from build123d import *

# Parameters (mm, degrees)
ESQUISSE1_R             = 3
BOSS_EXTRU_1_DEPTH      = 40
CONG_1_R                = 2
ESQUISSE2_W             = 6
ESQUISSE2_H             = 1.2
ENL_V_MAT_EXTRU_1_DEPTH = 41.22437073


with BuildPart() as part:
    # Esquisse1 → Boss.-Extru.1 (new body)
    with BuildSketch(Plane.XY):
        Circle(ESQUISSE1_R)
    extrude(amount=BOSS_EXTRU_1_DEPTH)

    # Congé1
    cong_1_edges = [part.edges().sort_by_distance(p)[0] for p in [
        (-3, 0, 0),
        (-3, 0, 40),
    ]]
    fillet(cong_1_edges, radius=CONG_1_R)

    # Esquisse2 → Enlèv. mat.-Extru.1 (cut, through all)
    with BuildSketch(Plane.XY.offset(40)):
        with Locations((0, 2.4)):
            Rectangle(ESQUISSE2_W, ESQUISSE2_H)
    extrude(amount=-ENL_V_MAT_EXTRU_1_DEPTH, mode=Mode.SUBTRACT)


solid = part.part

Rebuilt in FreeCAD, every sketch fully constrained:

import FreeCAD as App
import Part
import Sketcher
from FreeCAD import Vector
Q = App.Units.Quantity


def edges_at(feature, points):
    """Names of the edges that pass closest to the given points."""
    edges = feature.Shape.Edges
    near = lambda p: min(range(len(edges)), key=lambda i: edges[i].distToShape(Part.Vertex(*p))[0])
    return sorted({f"Edge{near(p) + 1}" for p in points})

doc = App.newDocument("Part")
body = doc.addObject("PartDesign::Body", "Body")

# Sketch on XY plane
sketch1 = body.newObject("Sketcher::SketchObject", "Sketch")
sketch1.AttachmentSupport = (doc.getObject("XY_Plane"), [""])
sketch1.MapMode = "FlatFace"
sketch1.addGeometry(Part.Circle(Vector(0, 0, 0), Vector(0, 0, 1), 3), False)
sketch1.addConstraint([
    Sketcher.Constraint("Coincident", 0, 3, -1, 1),
    Sketcher.Constraint("Diameter", 0, Q("6 mm")),
])
pad1 = body.newObject("PartDesign::Pad", "Pad")
pad1.Profile = sketch1
pad1.Length = 40
doc.recompute()

fillet = body.newObject("PartDesign::Fillet", "Fillet")
fillet.Base = (pad1, edges_at(pad1, [(-3, 0, 0), (-3, 0, 40)]))
fillet.Radius = 2

# Sketch on XY plane
sketch2 = body.newObject("Sketcher::SketchObject", "Sketch001")
sketch2.AttachmentSupport = (doc.getObject("XY_Plane"), [""])
sketch2.MapMode = "FlatFace"
sketch2.AttachmentOffset = App.Placement(Vector(0, 0, 40), App.Rotation())
sketch2.addGeometry([
    Part.LineSegment(Vector(-3, 3, 0), Vector(-3, 1.8, 0)),
    Part.LineSegment(Vector(-3, 1.8, 0), Vector(3, 1.8, 0)),
    Part.LineSegment(Vector(3, 1.8, 0), Vector(3, 3, 0)),
    Part.LineSegment(Vector(3, 3, 0), Vector(-3, 3, 0)),
], False)
sketch2.addConstraint([
    Sketcher.Constraint("Coincident", 0, 2, 1, 1),
    Sketcher.Constraint("Coincident", 1, 2, 2, 1),
    Sketcher.Constraint("Coincident", 2, 2, 3, 1),
    Sketcher.Constraint("Coincident", 3, 2, 0, 1),
    Sketcher.Constraint("Vertical", 0),
    Sketcher.Constraint("Horizontal", 1),
    Sketcher.Constraint("Vertical", 2),
    Sketcher.Constraint("Horizontal", 3),
    Sketcher.Constraint("DistanceX", 1, 1, 1, 2, Q("6 mm")),
    Sketcher.Constraint("DistanceY", 0, 2, 0, 1, Q("1.2 mm")),
    Sketcher.Constraint("DistanceX", 0, 2, -1, 1, Q("3 mm")),
    Sketcher.Constraint("DistanceY", -1, 1, 2, 2, Q("3 mm")),
])
pocket1 = body.newObject("PartDesign::Pocket", "Pocket")
pocket1.Profile = sketch2
pocket1.Type = "ThroughAll"

doc.recompute()
